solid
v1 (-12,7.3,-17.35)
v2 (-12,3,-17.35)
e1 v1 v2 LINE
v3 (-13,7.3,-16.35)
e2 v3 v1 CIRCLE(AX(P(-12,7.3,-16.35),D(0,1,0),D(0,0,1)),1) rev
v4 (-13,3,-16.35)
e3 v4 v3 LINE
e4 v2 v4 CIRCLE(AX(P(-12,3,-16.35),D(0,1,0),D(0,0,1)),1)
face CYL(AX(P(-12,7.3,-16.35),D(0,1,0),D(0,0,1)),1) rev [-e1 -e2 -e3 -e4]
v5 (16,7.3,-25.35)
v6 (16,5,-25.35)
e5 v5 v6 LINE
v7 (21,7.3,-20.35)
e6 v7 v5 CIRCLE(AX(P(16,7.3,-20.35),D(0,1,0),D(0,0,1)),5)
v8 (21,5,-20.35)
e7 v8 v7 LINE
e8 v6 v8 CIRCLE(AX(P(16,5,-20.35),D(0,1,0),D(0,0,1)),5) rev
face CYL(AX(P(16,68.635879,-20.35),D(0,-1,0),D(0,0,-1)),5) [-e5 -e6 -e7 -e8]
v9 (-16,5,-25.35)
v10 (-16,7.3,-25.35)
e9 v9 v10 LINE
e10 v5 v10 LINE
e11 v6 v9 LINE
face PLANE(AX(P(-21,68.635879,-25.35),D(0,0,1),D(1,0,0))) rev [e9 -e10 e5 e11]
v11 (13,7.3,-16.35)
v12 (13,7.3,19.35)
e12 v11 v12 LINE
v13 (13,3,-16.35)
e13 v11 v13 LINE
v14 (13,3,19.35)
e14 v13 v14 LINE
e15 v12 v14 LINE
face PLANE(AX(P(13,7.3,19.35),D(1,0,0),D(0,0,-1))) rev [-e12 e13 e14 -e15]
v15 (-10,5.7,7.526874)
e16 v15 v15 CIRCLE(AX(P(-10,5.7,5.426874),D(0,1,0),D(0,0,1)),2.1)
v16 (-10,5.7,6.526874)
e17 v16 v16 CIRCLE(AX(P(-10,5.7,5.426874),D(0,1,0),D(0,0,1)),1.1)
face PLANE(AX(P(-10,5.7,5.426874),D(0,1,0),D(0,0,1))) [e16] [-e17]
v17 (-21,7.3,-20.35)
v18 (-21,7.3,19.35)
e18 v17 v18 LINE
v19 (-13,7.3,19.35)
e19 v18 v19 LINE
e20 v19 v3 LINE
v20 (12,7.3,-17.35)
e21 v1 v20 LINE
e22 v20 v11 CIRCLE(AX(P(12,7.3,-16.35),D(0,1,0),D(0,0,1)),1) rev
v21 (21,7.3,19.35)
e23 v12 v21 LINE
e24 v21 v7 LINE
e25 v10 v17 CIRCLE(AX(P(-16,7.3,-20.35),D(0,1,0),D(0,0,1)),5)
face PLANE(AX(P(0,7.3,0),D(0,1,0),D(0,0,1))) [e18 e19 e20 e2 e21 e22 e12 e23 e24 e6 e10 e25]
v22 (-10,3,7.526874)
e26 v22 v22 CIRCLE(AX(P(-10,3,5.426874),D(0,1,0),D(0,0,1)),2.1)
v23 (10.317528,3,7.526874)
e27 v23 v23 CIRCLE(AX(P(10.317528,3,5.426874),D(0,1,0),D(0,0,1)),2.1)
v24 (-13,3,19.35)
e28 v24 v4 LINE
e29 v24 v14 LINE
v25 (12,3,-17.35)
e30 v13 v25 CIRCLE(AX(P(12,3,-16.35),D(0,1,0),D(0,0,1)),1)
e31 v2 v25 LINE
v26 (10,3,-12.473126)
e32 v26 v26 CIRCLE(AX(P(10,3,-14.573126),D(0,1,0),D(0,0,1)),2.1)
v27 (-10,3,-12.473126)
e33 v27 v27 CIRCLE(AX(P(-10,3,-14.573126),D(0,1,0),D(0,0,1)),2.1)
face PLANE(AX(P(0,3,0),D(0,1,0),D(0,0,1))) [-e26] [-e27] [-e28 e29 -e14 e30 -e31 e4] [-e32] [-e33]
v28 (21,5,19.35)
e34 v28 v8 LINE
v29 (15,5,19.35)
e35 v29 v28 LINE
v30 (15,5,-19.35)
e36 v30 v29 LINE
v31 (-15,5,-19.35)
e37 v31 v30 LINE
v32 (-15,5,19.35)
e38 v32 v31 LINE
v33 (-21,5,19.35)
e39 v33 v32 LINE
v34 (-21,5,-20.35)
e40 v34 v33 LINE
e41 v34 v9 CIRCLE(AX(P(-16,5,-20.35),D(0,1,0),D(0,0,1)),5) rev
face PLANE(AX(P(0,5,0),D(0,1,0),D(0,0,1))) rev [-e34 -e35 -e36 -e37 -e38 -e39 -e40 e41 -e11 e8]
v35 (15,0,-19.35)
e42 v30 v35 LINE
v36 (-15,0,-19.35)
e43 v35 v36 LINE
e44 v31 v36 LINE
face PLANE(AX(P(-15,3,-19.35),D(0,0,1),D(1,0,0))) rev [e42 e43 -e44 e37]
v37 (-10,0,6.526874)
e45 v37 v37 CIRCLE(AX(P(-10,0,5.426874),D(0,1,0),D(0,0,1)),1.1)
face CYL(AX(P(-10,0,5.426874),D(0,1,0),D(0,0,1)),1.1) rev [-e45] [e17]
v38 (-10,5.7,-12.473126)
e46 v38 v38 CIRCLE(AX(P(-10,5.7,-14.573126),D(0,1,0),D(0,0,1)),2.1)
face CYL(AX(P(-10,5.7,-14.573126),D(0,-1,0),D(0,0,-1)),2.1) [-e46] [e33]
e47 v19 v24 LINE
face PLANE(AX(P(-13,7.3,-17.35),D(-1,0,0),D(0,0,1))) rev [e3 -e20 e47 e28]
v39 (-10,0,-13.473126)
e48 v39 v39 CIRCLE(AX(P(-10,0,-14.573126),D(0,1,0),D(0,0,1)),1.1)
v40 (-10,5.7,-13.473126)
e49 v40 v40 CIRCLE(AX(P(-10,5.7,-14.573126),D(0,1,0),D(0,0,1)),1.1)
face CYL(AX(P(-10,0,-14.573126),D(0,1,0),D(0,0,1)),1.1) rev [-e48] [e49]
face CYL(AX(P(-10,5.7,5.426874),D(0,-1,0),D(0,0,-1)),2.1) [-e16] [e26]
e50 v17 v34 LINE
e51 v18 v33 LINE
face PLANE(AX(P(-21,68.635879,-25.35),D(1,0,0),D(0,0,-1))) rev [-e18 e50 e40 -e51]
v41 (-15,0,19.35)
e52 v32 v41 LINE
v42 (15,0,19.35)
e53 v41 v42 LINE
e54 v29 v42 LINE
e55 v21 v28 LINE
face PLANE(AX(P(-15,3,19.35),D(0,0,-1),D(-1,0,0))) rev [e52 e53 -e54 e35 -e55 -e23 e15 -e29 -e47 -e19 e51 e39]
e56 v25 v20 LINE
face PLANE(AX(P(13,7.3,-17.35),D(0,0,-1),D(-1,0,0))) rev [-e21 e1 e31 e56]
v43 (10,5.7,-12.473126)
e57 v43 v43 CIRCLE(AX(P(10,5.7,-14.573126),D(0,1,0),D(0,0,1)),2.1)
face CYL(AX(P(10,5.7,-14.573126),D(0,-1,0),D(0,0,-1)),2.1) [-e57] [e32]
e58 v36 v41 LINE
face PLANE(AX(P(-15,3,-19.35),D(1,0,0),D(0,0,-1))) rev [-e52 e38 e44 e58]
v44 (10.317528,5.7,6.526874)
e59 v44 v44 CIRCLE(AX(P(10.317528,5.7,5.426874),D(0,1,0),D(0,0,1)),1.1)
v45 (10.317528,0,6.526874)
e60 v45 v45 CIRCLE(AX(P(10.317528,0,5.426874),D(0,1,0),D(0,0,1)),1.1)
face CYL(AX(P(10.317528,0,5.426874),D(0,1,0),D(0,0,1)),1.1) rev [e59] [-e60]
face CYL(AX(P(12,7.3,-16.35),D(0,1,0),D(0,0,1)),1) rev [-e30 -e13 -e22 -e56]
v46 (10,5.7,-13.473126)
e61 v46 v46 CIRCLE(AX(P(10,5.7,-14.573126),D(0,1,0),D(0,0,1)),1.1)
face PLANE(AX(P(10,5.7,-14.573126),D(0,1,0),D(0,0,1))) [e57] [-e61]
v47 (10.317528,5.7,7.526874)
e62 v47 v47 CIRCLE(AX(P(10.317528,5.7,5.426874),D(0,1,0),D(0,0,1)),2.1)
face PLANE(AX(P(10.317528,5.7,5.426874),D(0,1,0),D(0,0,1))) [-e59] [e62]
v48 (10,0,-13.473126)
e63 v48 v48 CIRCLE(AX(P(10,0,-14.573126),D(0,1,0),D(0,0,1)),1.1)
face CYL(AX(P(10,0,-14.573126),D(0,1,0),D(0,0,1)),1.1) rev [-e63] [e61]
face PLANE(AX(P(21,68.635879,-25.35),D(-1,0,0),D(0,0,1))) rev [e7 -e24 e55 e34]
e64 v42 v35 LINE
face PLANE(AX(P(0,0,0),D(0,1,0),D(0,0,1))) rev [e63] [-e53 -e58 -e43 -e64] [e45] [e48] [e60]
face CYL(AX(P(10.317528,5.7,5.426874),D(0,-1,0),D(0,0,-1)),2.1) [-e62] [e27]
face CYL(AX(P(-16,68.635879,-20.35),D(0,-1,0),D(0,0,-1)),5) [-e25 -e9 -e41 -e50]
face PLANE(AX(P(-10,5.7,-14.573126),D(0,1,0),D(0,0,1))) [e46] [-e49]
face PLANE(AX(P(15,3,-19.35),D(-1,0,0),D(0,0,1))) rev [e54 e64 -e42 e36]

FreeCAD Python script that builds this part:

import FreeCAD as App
import Part
import Sketcher
from FreeCAD import Vector


def edges_at(feature, points):
    """Names of the edges that pass closest to the given points."""
    edges = feature.Shape.Edges
    near = lambda p: min(range(len(edges)), key=lambda i: edges[i].distToShape(Part.Vertex(*p))[0])
    return sorted({f"Edge{near(p) + 1}" for p in points})

doc = App.newDocument("Part")
params = doc.addObject("Spreadsheet::Sheet", "Params")
for row, (alias, value) in enumerate([
    ("sketch1_width", "30 mm"),
    ("sketch1_height", "38.7 mm"),
    ("pad1_length", "3 mm"),
    ("sketch2_width", "26 mm"),
    ("sketch2_width2", "2 mm"),
    ("sketch2_height", "36.7 mm"),
    ("sketch2_height2", "38.7 mm"),
    ("pad2_length", "4.3 mm"),
    ("fillet_radius", "1 mm"),
    ("sketch3_diameter", "2.2 mm"),
    ("sketch4_diameter", "4.2 mm"),
    ("sketch4_diameter2", "2.2 mm"),
    ("pad3_length", "2.7 mm"),
    ("sketch5_width", "42 mm"),
    ("sketch5_width2", "6 mm"),
    ("sketch5_height", "44.7 mm"),
    ("sketch5_height2", "38.7 mm"),
    ("pad4_length", "2.3 mm"),
    ("fillet2_radius", "5 mm"),
], start=1):
    params.set(f"A{row}", alias)
    params.set(f"B{row}", "=" + value)
    params.setAlias(f"B{row}", alias)

body = doc.addObject("PartDesign::Body", "Body")

# Sketch on XZ plane
sketch1 = body.newObject("Sketcher::SketchObject", "Sketch")
sketch1.AttachmentSupport = (doc.getObject("XZ_Plane"), [""])
sketch1.MapMode = "FlatFace"
sketch1.addGeometry([
    Part.LineSegment(Vector(-15, -19, 0), Vector(-15, 19, 0)),
    Part.LineSegment(Vector(-15, 19, 0), Vector(15, 19, 0)),
    Part.LineSegment(Vector(15, 19, 0), Vector(15, -19, 0)),
    Part.LineSegment(Vector(15, -19, 0), Vector(-15, -19, 0)),
], False)
sketch1.addConstraint([
    Sketcher.Constraint("Coincident", 0, 2, 1, 1),
    Sketcher.Constraint("Coincident", 1, 2, 2, 1),
    Sketcher.Constraint("Coincident", 2, 2, 3, 1),
    Sketcher.Constraint("Coincident", 3, 2, 0, 1),
    Sketcher.Constraint("Vertical", 0),
    Sketcher.Constraint("Horizontal", 1),
    Sketcher.Constraint("Vertical", 2),
    Sketcher.Constraint("Horizontal", 3),
    Sketcher.Constraint("Symmetric", 0, 2, 2, 2, -1, 1),
    Sketcher.Constraint("DistanceX", 1, 1, 1, 2, 30.0),
    Sketcher.Constraint("DistanceY", 0, 1, 0, 2, 38.7),
])
sketch1.setExpression("Constraints[9]", "Params.sketch1_width")
sketch1.setExpression("Constraints[10]", "Params.sketch1_height")
pad1 = body.newObject("PartDesign::Pad", "Pad")
pad1.Profile = sketch1
pad1.setExpression("Length", "Params.pad1_length")
pad1.Reversed = True

# Sketch on XZ plane
sketch2 = body.newObject("Sketcher::SketchObject", "Sketch001")
sketch2.AttachmentSupport = (doc.getObject("XZ_Plane"), [""])
sketch2.MapMode = "FlatFace"
sketch2.AttachmentOffset = App.Placement(Vector(0, 0, -3), App.Rotation())
sketch2.addGeometry([
    Part.LineSegment(Vector(-13, 19.4, 0), Vector(-13, -17.4, 0)),  # 0
    Part.LineSegment(Vector(-13, -17.4, 0), Vector(13, -17.4, 0)),  # 1
    Part.LineSegment(Vector(13, -17.4, 0), Vector(13, 19.4, 0)),  # 2
    Part.LineSegment(Vector(13, 19.4, 0), Vector(15, 19.4, 0)),  # 3
    Part.LineSegment(Vector(15, 19.4, 0), Vector(15, -19.4, 0)),  # 4
    Part.LineSegment(Vector(15, -19.4, 0), Vector(-15, -19.4, 0)),  # 5
    Part.LineSegment(Vector(-15, -19.4, 0), Vector(-15, 19.4, 0)),  # 6
    Part.LineSegment(Vector(-15, 19.4, 0), Vector(-13, 19.4, 0)),  # 7
], False)
sketch2.addConstraint([
    Sketcher.Constraint("Coincident", 0, 2, 1, 1),
    Sketcher.Constraint("Coincident", 1, 2, 2, 1),
    Sketcher.Constraint("Coincident", 2, 2, 3, 1),
    Sketcher.Constraint("Coincident", 3, 2, 4, 1),
    Sketcher.Constraint("Coincident", 4, 2, 5, 1),
    Sketcher.Constraint("Coincident", 5, 2, 6, 1),
    Sketcher.Constraint("Coincident", 6, 2, 7, 1),
    Sketcher.Constraint("Coincident", 7, 2, 0, 1),
    Sketcher.Constraint("Vertical", 0),
    Sketcher.Constraint("Horizontal", 1),
    Sketcher.Constraint("Vertical", 2),
    Sketcher.Constraint("Horizontal", 3),
    Sketcher.Constraint("Vertical", 4),
    Sketcher.Constraint("Horizontal", 5),
    Sketcher.Constraint("Vertical", 6),
    Sketcher.Constraint("Horizontal", 7),
    Sketcher.Constraint("Symmetric", 3, 2, 5, 2, -1, 1),
    Sketcher.Constraint("Symmetric", 2, 2, 7, 2, -2),
    Sketcher.Constraint("DistanceX", 1, 1, 1, 2, 26.0),
    Sketcher.Constraint("DistanceX", 3, 1, 3, 2, 2.0),
    Sketcher.Constraint("DistanceY", 0, 2, 0, 1, 36.7),
    Sketcher.Constraint("DistanceY", 4, 2, 4, 1, 38.7),
])
sketch2.setExpression("Constraints[18]", "Params.sketch2_width")
sketch2.setExpression("Constraints[19]", "Params.sketch2_width2")
sketch2.setExpression("Constraints[20]", "Params.sketch2_height")
sketch2.setExpression("Constraints[21]", "Params.sketch2_height2")
pad2 = body.newObject("PartDesign::Pad", "Pad001")
pad2.Profile = sketch2
pad2.setExpression("Length", "Params.pad2_length")
pad2.Reversed = True
doc.recompute()

fillet = body.newObject("PartDesign::Fillet", "Fillet")
fillet.Base = (pad2, edges_at(pad2, [(-13, 5.15, -17.35), (13, 5.15, -17.35)]))
fillet.setExpression("Radius", "Params.fillet_radius")

# Sketch on XZ plane
sketch3 = body.newObject("Sketcher::SketchObject", "Sketch002")
sketch3.AttachmentSupport = (doc.getObject("XZ_Plane"), [""])
sketch3.MapMode = "FlatFace"
sketch3.AttachmentOffset = App.Placement(Vector(0, 0, -3), App.Rotation())
sketch3.addGeometry([
    Part.Circle(Vector(-10, -14.6, 0), Vector(0, 0, 1), 1.1),
    Part.Circle(Vector(10, -14.6, 0), Vector(0, 0, 1), 1.1),
    Part.Circle(Vector(-10, 5.4, 0), Vector(0, 0, 1), 1.1),
    Part.Circle(Vector(10.3, 5.4, 0), Vector(0, 0, 1), 1.1),
], False)
sketch3.addConstraint([
    Sketcher.Constraint("Equal", 0, 1),
    Sketcher.Constraint("Equal", 1, 2),
    Sketcher.Constraint("Equal", 2, 3),
    Sketcher.Constraint("Symmetric", 0, 3, 1, 3, -2),
    Sketcher.Constraint("Horizontal", 2, 3, 3, 3),
    Sketcher.Constraint("Vertical", 0, 3, 2, 3),
    Sketcher.Constraint("Diameter", 0, 2.2),
    Sketcher.Constraint("DistanceX", 0, 3, -1, 1, 10.0),
    Sketcher.Constraint("DistanceY", 0, 3, 2, 3, 20.0),
    Sketcher.Constraint("DistanceX", -1, 1, 3, 3, 10.317528),
    Sketcher.Constraint("DistanceY", 0, 3, -1, 1, 14.573126),
])
sketch3.setExpression("Constraints[6]", "Params.sketch3_diameter")
pocket1 = body.newObject("PartDesign::Pocket", "Pocket")
pocket1.Profile = sketch3
pocket1.Type = "ThroughAll"
pocket1.Reversed = True

# Sketch on XZ plane
sketch4 = body.newObject("Sketcher::SketchObject", "Sketch003")
sketch4.AttachmentSupport = (doc.getObject("XZ_Plane"), [""])
sketch4.MapMode = "FlatFace"
sketch4.AttachmentOffset = App.Placement(Vector(0, 0, -5.7), App.Rotation())
sketch4.addGeometry([
    Part.Circle(Vector(-10, -14.6, 0), Vector(0, 0, 1), 2.1),  # 0
    Part.Circle(Vector(-10, -14.6, 0), Vector(0, 0, 1), 1.1),  # 1
    Part.Circle(Vector(10, -14.6, 0), Vector(0, 0, 1), 2.1),  # 2
    Part.Circle(Vector(10, -14.6, 0), Vector(0, 0, 1), 1.1),  # 3
    Part.Circle(Vector(10.3, 5.4, 0), Vector(0, 0, 1), 2.1),  # 4
    Part.Circle(Vector(10.3, 5.4, 0), Vector(0, 0, 1), 1.1),  # 5
    Part.Circle(Vector(-10, 5.4, 0), Vector(0, 0, 1), 2.1),  # 6
    Part.Circle(Vector(-10, 5.4, 0), Vector(0, 0, 1), 1.1),  # 7
], False)
sketch4.addConstraint([
    Sketcher.Constraint("Coincident", 1, 3, 0, 3),
    Sketcher.Constraint("Coincident", 3, 3, 2, 3),
    Sketcher.Constraint("Coincident", 5, 3, 4, 3),
    Sketcher.Constraint("Coincident", 7, 3, 6, 3),
    Sketcher.Constraint("Equal", 0, 2),
    Sketcher.Constraint("Equal", 1, 3),
    Sketcher.Constraint("Equal", 2, 4),
    Sketcher.Constraint("Equal", 3, 5),
    Sketcher.Constraint("Equal", 4, 6),
    Sketcher.Constraint("Equal", 5, 7),
    Sketcher.Constraint("Symmetric", 0, 3, 2, 3, -2),
    Sketcher.Constraint("Horizontal", 5, 3, 6, 3),
    Sketcher.Constraint("Vertical", 1, 3, 6, 3),
    Sketcher.Constraint("Diameter", 0, 4.2),
    Sketcher.Constraint("Diameter", 1, 2.2),
    Sketcher.Constraint("DistanceX", 0, 3, -1, 1, 10.0),
    Sketcher.Constraint("DistanceY", 2, 3, 4, 3, 20.0),
    Sketcher.Constraint("DistanceX", -1, 1, 4, 3, 10.317528),
    Sketcher.Constraint("DistanceY", 0, 3, -1, 1, 14.573126),
])
sketch4.setExpression("Constraints[13]", "Params.sketch4_diameter")
sketch4.setExpression("Constraints[14]", "Params.sketch4_diameter2")
pad3 = body.newObject("PartDesign::Pad", "Pad002")
pad3.Profile = sketch4
pad3.setExpression("Length", "Params.pad3_length")

# Sketch on XZ plane
sketch5 = body.newObject("Sketcher::SketchObject", "Sketch004")
sketch5.AttachmentSupport = (doc.getObject("XZ_Plane"), [""])
sketch5.MapMode = "FlatFace"
sketch5.AttachmentOffset = App.Placement(Vector(0, 0, -5), App.Rotation())
sketch5.addGeometry([
    Part.LineSegment(Vector(21, -25, 0), Vector(-21, -25, 0)),  # 0
    Part.LineSegment(Vector(-21, -25, 0), Vector(-21, 19, 0)),  # 1
    Part.LineSegment(Vector(-21, 19, 0), Vector(-15, 19, 0)),  # 2
    Part.LineSegment(Vector(-15, 19, 0), Vector(-15, -19, 0)),  # 3
    Part.LineSegment(Vector(-15, -19, 0), Vector(15, -19, 0)),  # 4
    Part.LineSegment(Vector(15, -19, 0), Vector(15, 19, 0)),  # 5
    Part.LineSegment(Vector(15, 19, 0), Vector(21, 19, 0)),  # 6
    Part.LineSegment(Vector(21, 19, 0), Vector(21, -25, 0)),  # 7
], False)
sketch5.addConstraint([
    Sketcher.Constraint("Coincident", 0, 2, 1, 1),
    Sketcher.Constraint("Coincident", 1, 2, 2, 1),
    Sketcher.Constraint("Coincident", 2, 2, 3, 1),
    Sketcher.Constraint("Coincident", 3, 2, 4, 1),
    Sketcher.Constraint("Coincident", 4, 2, 5, 1),
    Sketcher.Constraint("Coincident", 5, 2, 6, 1),
    Sketcher.Constraint("Coincident", 6, 2, 7, 1),
    Sketcher.Constraint("Coincident", 7, 2, 0, 1),
    Sketcher.Constraint("Horizontal", 0),
    Sketcher.Constraint("Vertical", 1),
    Sketcher.Constraint("Horizontal", 2),
    Sketcher.Constraint("Vertical", 3),
    Sketcher.Constraint("Horizontal", 4),
    Sketcher.Constraint("Vertical", 5),
    Sketcher.Constraint("Horizontal", 6),
    Sketcher.Constraint("Vertical", 7),
    Sketcher.Constraint("Symmetric", 2, 2, 4, 2, -1, 1),
    Sketcher.Constraint("Symmetric", 1, 2, 6, 2, -2),
    Sketcher.Constraint("DistanceX", 0, 2, 0, 1, 42.0),
    Sketcher.Constraint("DistanceX", 2, 1, 2, 2, 6.0),
    Sketcher.Constraint("DistanceY", 1, 1, 1, 2, 44.7),
    Sketcher.Constraint("DistanceY", 3, 2, 3, 1, 38.7),
])
sketch5.setExpression("Constraints[18]", "Params.sketch5_width")
sketch5.setExpression("Constraints[19]", "Params.sketch5_width2")
sketch5.setExpression("Constraints[20]", "Params.sketch5_height")
sketch5.setExpression("Constraints[21]", "Params.sketch5_height2")
pad4 = body.newObject("PartDesign::Pad", "Pad003")
pad4.Profile = sketch5
pad4.setExpression("Length", "Params.pad4_length")
pad4.Reversed = True
doc.recompute()

fillet2 = body.newObject("PartDesign::Fillet", "Fillet001")
fillet2.Base = (pad4, edges_at(pad4, [(-21, 6.15, -25.35), (21, 6.15, -25.35)]))
fillet2.setExpression("Radius", "Params.fillet2_radius")

doc.recompute()
